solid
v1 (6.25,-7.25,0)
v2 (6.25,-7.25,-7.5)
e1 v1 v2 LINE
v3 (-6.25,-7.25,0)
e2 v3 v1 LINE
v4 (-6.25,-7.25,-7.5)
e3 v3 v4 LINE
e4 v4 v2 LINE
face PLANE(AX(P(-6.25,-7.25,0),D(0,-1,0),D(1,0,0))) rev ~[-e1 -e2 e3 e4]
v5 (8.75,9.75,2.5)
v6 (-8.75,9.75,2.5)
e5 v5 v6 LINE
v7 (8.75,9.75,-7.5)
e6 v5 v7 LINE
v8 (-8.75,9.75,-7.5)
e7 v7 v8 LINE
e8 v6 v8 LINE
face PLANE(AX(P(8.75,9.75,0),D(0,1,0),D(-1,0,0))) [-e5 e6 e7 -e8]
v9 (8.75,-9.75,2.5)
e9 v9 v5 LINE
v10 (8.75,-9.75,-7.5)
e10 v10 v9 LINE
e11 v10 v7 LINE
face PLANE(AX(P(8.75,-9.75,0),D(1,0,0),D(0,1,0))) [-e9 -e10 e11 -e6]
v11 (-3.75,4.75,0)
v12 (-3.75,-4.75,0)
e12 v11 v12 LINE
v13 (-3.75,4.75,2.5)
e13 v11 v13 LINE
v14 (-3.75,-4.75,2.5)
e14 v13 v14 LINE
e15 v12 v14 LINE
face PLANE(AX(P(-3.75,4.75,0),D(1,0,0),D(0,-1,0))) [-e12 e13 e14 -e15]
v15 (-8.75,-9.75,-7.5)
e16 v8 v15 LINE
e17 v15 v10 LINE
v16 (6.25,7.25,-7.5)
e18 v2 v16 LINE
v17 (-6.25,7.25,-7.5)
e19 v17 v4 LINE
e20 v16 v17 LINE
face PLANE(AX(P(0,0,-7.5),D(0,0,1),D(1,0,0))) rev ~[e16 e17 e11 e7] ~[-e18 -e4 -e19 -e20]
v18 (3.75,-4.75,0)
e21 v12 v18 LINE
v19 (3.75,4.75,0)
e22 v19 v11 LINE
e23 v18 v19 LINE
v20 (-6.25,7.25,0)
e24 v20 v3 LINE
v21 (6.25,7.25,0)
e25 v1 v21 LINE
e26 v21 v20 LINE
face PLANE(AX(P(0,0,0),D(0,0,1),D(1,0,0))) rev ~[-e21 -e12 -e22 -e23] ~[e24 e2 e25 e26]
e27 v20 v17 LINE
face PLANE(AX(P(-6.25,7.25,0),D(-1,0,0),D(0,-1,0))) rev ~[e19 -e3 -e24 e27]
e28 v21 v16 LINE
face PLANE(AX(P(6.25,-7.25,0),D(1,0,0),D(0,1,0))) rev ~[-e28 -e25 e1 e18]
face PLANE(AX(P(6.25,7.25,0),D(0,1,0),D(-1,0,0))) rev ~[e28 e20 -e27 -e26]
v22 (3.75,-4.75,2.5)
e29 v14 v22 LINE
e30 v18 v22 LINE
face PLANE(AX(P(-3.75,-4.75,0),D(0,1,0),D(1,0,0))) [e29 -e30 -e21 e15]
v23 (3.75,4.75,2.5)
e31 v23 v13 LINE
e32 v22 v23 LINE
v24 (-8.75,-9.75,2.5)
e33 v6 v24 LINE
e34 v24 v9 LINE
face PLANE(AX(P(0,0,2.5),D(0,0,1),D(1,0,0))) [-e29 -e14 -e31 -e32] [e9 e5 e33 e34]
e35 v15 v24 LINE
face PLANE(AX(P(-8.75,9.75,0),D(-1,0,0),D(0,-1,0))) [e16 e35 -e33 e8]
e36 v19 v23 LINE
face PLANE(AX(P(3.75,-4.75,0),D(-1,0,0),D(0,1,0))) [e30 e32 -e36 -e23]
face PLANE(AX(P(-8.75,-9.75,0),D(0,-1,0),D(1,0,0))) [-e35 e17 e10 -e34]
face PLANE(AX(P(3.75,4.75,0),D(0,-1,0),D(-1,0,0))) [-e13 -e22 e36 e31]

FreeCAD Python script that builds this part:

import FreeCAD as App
import Part
import Sketcher


def add_polygon(sketch, points):
    """Adds a closed chain of lines whose ends are joined by coincident constraints."""
    first, n = sketch.GeometryCount, len(points)
    for a, b in zip(points, points[1:] + points[:1]):
        sketch.addGeometry(Part.LineSegment(App.Vector(*a, 0), App.Vector(*b, 0)), False)
    for i in range(n):
        sketch.addConstraint(Sketcher.Constraint("Coincident", first + i, 2, first + (i + 1) % n, 1))

doc = App.newDocument("Part")
body = doc.addObject("PartDesign::Body", "Body")

# Sketch on XY plane
sketch1 = body.newObject("Sketcher::SketchObject", "Sketch")
sketch1.AttachmentSupport = (doc.getObject("XY_Plane"), [""])
sketch1.MapMode = "FlatFace"
add_polygon(sketch1, [(-9, 10), (-9, -10), (9, -10), (9, 10)])  # lines 0-3
add_polygon(sketch1, [(4, -5), (-4, -5), (-4, 5), (4, 5)])  # lines 4-7
sketch1.addConstraint(Sketcher.Constraint("Vertical", 0))
sketch1.addConstraint(Sketcher.Constraint("Horizontal", 1))
sketch1.addConstraint(Sketcher.Constraint("Vertical", 2))
sketch1.addConstraint(Sketcher.Constraint("Horizontal", 3))
sketch1.addConstraint(Sketcher.Constraint("Horizontal", 4))
sketch1.addConstraint(Sketcher.Constraint("Vertical", 5))
sketch1.addConstraint(Sketcher.Constraint("Horizontal", 6))
sketch1.addConstraint(Sketcher.Constraint("Vertical", 7))
sketch1.addConstraint(Sketcher.Constraint("Symmetric", 0, 2, 2, 2, -1, 1))
sketch1.addConstraint(Sketcher.Constraint("Symmetric", 4, 2, 6, 2, -1, 1))
sketch1.addConstraint(Sketcher.Constraint("DistanceX", 1, 1, 1, 2, 17.5))
sketch1.addConstraint(Sketcher.Constraint("DistanceX", 4, 2, 4, 1, 7.5))
sketch1.addConstraint(Sketcher.Constraint("DistanceY", 0, 2, 0, 1, 19.5))
sketch1.addConstraint(Sketcher.Constraint("DistanceY", 5, 1, 5, 2, 9.5))
pad1 = body.newObject("PartDesign::Pad", "Pad")
pad1.Profile = sketch1
pad1.Length = 2.5

# Sketch on XY plane
sketch2 = body.newObject("Sketcher::SketchObject", "Sketch001")
sketch2.AttachmentSupport = (doc.getObject("XY_Plane"), [""])
sketch2.MapMode = "FlatFace"
add_polygon(sketch2, [(-9, 10), (-9, -10), (9, -10), (9, 10)])  # lines 0-3
add_polygon(sketch2, [(6, -7), (-6, -7), (-6, 7), (6, 7)])  # lines 4-7
sketch2.addConstraint(Sketcher.Constraint("Vertical", 0))
sketch2.addConstraint(Sketcher.Constraint("Horizontal", 1))
sketch2.addConstraint(Sketcher.Constraint("Vertical", 2))
sketch2.addConstraint(Sketcher.Constraint("Horizontal", 3))
sketch2.addConstraint(Sketcher.Constraint("Horizontal", 4))
sketch2.addConstraint(Sketcher.Constraint("Vertical", 5))
sketch2.addConstraint(Sketcher.Constraint("Horizontal", 6))
sketch2.addConstraint(Sketcher.Constraint("Vertical", 7))
sketch2.addConstraint(Sketcher.Constraint("Symmetric", 0, 2, 2, 2, -1, 1))
sketch2.addConstraint(Sketcher.Constraint("Symmetric", 4, 2, 6, 2, -1, 1))
sketch2.addConstraint(Sketcher.Constraint("DistanceX", 1, 1, 1, 2, 17.5))
sketch2.addConstraint(Sketcher.Constraint("DistanceX", 4, 2, 4, 1, 12.5))
sketch2.addConstraint(Sketcher.Constraint("DistanceY", 0, 2, 0, 1, 19.5))
sketch2.addConstraint(Sketcher.Constraint("DistanceY", 5, 1, 5, 2, 14.5))
pad2 = body.newObject("PartDesign::Pad", "Pad001")
pad2.Profile = sketch2
pad2.Length = 7.5
pad2.Reversed = True

doc.recompute()
